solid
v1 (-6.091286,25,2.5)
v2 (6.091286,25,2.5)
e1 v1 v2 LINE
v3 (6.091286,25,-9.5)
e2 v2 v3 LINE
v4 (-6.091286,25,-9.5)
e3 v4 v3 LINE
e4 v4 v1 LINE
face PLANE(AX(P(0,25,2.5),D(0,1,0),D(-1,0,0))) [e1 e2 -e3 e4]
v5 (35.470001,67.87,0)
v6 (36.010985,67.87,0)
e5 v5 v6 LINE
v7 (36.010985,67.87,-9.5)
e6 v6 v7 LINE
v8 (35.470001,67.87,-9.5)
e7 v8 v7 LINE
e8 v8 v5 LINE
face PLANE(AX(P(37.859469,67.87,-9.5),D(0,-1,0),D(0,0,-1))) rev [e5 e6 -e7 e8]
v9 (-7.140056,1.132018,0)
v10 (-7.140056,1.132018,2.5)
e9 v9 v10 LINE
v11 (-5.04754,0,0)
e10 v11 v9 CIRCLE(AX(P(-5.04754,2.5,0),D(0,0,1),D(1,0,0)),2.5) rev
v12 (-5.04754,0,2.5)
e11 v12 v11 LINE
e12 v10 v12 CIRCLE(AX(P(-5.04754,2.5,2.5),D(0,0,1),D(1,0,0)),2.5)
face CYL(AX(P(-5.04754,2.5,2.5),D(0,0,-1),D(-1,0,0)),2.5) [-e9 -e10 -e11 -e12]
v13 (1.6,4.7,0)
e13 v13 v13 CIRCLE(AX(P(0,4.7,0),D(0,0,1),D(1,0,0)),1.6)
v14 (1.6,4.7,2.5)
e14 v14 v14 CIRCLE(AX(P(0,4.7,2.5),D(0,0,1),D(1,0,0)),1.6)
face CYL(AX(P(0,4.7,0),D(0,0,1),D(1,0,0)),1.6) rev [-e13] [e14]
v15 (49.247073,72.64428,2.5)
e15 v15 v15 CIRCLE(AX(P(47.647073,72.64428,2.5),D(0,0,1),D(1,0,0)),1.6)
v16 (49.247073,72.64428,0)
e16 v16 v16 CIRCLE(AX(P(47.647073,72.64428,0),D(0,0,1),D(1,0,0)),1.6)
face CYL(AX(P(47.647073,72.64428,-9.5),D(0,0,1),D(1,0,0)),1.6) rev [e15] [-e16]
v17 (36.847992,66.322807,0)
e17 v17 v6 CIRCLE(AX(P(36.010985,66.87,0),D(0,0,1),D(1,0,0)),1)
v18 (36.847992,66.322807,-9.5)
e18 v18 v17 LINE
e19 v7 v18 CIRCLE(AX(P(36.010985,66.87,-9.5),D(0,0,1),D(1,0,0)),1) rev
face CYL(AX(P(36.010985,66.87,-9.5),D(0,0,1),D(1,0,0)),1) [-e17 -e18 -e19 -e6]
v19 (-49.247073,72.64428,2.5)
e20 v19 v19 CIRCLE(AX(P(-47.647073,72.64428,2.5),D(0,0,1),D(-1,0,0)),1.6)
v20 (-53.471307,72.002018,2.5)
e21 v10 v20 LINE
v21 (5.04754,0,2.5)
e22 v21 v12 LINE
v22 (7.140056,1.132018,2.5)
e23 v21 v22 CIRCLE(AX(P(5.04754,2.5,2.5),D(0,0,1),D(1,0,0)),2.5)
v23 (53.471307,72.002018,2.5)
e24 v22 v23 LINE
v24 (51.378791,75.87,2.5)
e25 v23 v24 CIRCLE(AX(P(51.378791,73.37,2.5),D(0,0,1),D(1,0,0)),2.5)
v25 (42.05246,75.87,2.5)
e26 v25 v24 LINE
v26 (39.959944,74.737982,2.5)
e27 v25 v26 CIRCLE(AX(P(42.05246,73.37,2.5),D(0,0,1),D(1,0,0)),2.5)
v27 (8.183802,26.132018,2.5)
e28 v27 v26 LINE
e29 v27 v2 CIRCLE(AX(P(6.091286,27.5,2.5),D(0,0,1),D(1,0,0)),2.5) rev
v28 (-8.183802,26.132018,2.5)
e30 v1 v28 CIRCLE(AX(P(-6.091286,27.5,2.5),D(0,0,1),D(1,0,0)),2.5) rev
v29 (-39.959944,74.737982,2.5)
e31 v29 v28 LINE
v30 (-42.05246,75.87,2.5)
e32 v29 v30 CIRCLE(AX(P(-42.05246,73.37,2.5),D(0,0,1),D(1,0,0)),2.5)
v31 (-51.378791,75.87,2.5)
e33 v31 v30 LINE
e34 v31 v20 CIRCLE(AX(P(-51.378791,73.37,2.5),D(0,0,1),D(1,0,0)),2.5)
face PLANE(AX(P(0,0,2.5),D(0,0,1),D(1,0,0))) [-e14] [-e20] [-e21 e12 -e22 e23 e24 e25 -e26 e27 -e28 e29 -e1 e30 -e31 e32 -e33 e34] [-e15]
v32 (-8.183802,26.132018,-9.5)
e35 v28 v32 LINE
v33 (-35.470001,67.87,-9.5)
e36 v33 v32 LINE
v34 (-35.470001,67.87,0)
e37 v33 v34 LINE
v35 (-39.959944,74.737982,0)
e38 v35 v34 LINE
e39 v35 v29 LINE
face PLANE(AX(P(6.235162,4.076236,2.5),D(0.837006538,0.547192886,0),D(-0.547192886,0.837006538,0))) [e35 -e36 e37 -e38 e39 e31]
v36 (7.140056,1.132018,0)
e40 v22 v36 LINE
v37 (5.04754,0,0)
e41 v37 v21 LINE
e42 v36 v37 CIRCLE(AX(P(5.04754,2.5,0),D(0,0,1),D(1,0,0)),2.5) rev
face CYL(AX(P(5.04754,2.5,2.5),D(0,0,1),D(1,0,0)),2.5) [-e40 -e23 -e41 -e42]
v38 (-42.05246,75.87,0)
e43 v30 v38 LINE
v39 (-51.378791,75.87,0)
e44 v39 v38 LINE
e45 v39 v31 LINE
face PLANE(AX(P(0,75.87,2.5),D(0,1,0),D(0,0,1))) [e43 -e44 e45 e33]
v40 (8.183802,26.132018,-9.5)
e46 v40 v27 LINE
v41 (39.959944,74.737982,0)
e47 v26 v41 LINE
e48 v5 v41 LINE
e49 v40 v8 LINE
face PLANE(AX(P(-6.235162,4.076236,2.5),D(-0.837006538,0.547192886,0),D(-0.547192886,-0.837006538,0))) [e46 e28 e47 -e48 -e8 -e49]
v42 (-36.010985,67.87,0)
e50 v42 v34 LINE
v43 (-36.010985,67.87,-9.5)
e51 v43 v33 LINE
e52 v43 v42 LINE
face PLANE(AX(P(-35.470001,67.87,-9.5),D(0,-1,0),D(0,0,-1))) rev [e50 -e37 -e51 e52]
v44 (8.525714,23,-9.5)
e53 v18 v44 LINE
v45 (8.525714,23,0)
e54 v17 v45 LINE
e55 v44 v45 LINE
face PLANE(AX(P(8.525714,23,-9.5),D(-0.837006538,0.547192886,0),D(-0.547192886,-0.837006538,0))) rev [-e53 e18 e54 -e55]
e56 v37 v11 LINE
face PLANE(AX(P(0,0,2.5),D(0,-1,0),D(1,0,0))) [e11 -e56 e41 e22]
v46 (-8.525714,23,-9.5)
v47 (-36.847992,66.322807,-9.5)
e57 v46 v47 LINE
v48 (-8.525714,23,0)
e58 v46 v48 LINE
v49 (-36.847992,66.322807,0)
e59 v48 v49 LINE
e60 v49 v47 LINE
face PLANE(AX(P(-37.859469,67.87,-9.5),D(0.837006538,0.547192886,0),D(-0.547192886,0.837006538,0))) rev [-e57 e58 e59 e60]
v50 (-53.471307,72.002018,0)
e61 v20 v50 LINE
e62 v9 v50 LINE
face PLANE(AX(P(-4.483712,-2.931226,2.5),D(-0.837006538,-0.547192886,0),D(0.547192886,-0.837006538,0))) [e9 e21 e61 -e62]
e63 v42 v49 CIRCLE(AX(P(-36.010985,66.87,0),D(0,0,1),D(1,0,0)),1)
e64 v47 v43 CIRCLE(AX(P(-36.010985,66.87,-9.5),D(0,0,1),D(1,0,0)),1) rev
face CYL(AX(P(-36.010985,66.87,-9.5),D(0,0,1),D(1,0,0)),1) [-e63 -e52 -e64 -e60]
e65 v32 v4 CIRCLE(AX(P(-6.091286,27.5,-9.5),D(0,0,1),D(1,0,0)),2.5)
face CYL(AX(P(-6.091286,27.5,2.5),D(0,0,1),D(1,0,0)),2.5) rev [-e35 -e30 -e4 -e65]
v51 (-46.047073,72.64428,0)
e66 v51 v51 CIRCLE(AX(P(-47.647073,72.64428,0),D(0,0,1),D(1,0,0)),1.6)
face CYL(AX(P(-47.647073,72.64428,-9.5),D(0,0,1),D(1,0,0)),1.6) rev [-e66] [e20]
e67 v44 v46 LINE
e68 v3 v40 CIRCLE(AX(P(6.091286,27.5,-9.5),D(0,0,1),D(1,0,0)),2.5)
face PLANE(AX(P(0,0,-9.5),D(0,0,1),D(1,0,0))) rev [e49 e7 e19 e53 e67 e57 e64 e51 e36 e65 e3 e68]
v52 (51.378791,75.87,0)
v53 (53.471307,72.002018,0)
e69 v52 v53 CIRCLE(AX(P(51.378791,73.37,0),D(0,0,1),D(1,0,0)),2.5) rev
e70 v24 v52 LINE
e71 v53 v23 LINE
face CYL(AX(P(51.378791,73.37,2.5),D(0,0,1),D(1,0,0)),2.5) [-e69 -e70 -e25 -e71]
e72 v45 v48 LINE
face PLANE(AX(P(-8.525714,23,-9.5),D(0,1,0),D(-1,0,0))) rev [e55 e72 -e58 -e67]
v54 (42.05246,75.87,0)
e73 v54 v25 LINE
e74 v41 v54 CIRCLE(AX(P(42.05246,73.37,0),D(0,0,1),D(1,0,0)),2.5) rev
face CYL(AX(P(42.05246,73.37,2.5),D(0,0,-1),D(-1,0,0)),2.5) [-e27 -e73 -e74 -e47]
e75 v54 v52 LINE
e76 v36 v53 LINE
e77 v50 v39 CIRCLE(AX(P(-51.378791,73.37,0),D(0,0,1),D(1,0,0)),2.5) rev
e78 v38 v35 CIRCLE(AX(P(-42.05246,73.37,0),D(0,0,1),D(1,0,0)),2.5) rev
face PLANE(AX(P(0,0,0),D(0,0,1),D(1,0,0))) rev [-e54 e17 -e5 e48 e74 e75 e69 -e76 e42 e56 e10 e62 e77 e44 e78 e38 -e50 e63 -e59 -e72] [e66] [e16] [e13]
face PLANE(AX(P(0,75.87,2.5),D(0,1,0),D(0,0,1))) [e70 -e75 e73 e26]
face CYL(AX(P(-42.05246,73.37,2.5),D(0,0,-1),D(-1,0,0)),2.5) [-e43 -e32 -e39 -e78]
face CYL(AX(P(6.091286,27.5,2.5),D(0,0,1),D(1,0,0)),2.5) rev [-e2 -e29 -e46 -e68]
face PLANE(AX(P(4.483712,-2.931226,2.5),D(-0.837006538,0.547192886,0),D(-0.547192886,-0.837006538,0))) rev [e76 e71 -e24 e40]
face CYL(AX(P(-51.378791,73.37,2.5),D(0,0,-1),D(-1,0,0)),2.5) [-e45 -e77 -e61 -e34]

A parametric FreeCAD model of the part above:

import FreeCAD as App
import Part
import Sketcher
from FreeCAD import Vector


def edges_at(feature, points):
    """Names of the edges that pass closest to the given points."""
    edges = feature.Shape.Edges
    near = lambda p: min(range(len(edges)), key=lambda i: edges[i].distToShape(Part.Vertex(*p))[0])
    return sorted({f"Edge{near(p) + 1}" for p in points})


def add_polygon(sketch, points):
    """Adds a closed chain of lines whose ends are joined by coincident constraints."""
    first, n = sketch.GeometryCount, len(points)
    for a, b in zip(points, points[1:] + points[:1]):
        sketch.addGeometry(Part.LineSegment(App.Vector(*a, 0), App.Vector(*b, 0)), False)
    for i in range(n):
        sketch.addConstraint(Sketcher.Constraint("Coincident", first + i, 2, first + (i + 1) % n, 1))

doc = App.newDocument("Part")
body = doc.addObject("PartDesign::Body", "Body")

sketch1 = body.newObject("Sketcher::SketchObject", "Sketch")
sketch1.AttachmentSupport = (doc.getObject("XY_Plane"), [""])
sketch1.MapMode = "FlatFace"
add_polygon(sketch1, [(-6, 0), (6, 0), (56, 76), (41, 76), (7, 25), (-7, 25), (-41, 76), (-56, 76)])
sketch1.addConstraint([
    Sketcher.Constraint("Horizontal", 0),
    Sketcher.Constraint("Horizontal", 2),
    Sketcher.Constraint("Horizontal", 4),
    Sketcher.Constraint("Horizontal", 6),
    Sketcher.Constraint("Symmetric", 0, 2, 7, 2, -1, 1),
    Sketcher.Constraint("Symmetric", 2, 2, 5, 2, -2),
    Sketcher.Constraint("Parallel", 1, 3),
    Sketcher.Constraint("Parallel", 5, 7),
    Sketcher.Constraint("Equal", 2, 6),
    Sketcher.Constraint("DistanceX", 0, 1, 0, 2, 12.8),
    Sketcher.Constraint("DistanceX", 2, 2, 2, 1, 15.3),
    Sketcher.Constraint("DistanceX", -1, 1, 1, 2, 56.0),
    Sketcher.Constraint("DistanceY", -1, 1, 3, 2, 25.0),
    Sketcher.Constraint("DistanceY", -1, 1, 1, 2, 75.87),
])
pad1 = body.newObject("PartDesign::Pad", "Pad")
pad1.Profile = sketch1
pad1.Length = 2.5

sketch2 = body.newObject("Sketcher::SketchObject", "Sketch001")
sketch2.AttachmentSupport = (doc.getObject("XY_Plane"), [""])
sketch2.MapMode = "FlatFace"
sketch2.AttachmentOffset = App.Placement(Vector(0, 0, 2.5), App.Rotation())
sketch2.addGeometry(Part.Circle(Vector(0, 4.7, 0), Vector(0, 0, 1), 1.6), False)
sketch2.addConstraint([
    Sketcher.Constraint("PointOnObject", 0, 3, -2),
    Sketcher.Constraint("Diameter", 0, 3.2),
    Sketcher.Constraint("DistanceY", -1, 1, 0, 3, 4.7),
])
pocket1 = body.newObject("PartDesign::Pocket", "Pocket")
pocket1.Profile = sketch2
pocket1.Type = "ThroughAll"

sketch3 = body.newObject("Sketcher::SketchObject", "Sketch002")
sketch3.AttachmentSupport = (doc.getObject("XY_Plane"), [""])
sketch3.MapMode = "FlatFace"
add_polygon(sketch3, [(7.4, 25), (35.5, 67.9), (37.9, 67.9), (8.5, 23), (-8.5, 23), (-37.9, 67.9), (-35.5, 67.9), (-7.4, 25)])
sketch3.addConstraint([
    Sketcher.Constraint("Horizontal", 1),
    Sketcher.Constraint("Horizontal", 3),
    Sketcher.Constraint("Horizontal", 5),
    Sketcher.Constraint("Horizontal", 7),
    Sketcher.Constraint("Symmetric", 1, 2, 4, 2, -2),
    Sketcher.Constraint("Parallel", 0, 2),
    Sketcher.Constraint("Parallel", 4, 6),
    Sketcher.Constraint("Equal", 1, 5),
    Sketcher.Constraint("Equal", 2, 4),
    Sketcher.Constraint("DistanceY", -1, 1, 2, 2, 23.0),
    Sketcher.Constraint("DistanceY", -1, 1, 6, 2, 25.0),
    Sketcher.Constraint("DistanceX", -1, 1, 0, 2, 35.470001),
    Sketcher.Constraint("DistanceY", -1, 1, 0, 2, 67.87),
    Sketcher.Constraint("DistanceX", 7, 1, 7, 2, 14.887492),
    Sketcher.Constraint("DistanceX", 1, 1, 1, 2, 2.389468),
])
pad2 = body.newObject("PartDesign::Pad", "Pad001")
pad2.Profile = sketch3
pad2.Length = 9.5
pad2.Reversed = True
doc.recompute()

fillet = body.newObject("PartDesign::Fillet", "Fillet")
fillet.Base = (pad2, edges_at(pad2, [(37.859, 67.87, -4.75), (-37.859, 67.87, -4.75)]))
fillet.Radius = 1
doc.recompute()

fillet2 = body.newObject("PartDesign::Fillet", "Fillet001")
fillet2.Base = (fillet, edges_at(fillet, [
    (56, 75.87, 1.25),
    (6.4, 0, 1.25),
    (-6.4, 0, 1.25),
    (-56, 75.87, 1.25),
    (-40.7, 75.87, 1.25),
    (-7.444, 25, -3.5),
    (7.444, 25, -3.5),
    (40.7, 75.87, 1.25),
]))
fillet2.Radius = 2.5

sketch4 = body.newObject("Sketcher::SketchObject", "Sketch003")
sketch4.AttachmentSupport = (doc.getObject("XY_Plane"), [""])
sketch4.MapMode = "FlatFace"
sketch4.AttachmentOffset = App.Placement(Vector(0, 0, 2.5), App.Rotation())
sketch4.addGeometry([
    Part.Circle(Vector(47.6, 72.6, 0), Vector(0, 0, 1), 1.6),
    Part.Circle(Vector(-47.6, 72.6, 0), Vector(0, 0, 1), 1.6),
], False)
sketch4.addConstraint([
    Sketcher.Constraint("Equal", 0, 1),
    Sketcher.Constraint("Symmetric", 0, 3, 1, 3, -2),
    Sketcher.Constraint("Diameter", 0, 3.2),
    Sketcher.Constraint("DistanceY", -1, 1, 0, 3, 72.64428),
    Sketcher.Constraint("DistanceX", -1, 1, 0, 3, 47.647073),
])
pocket2 = body.newObject("PartDesign::Pocket", "Pocket001")
pocket2.Profile = sketch4
pocket2.Type = "ThroughAll"

doc.recompute()
